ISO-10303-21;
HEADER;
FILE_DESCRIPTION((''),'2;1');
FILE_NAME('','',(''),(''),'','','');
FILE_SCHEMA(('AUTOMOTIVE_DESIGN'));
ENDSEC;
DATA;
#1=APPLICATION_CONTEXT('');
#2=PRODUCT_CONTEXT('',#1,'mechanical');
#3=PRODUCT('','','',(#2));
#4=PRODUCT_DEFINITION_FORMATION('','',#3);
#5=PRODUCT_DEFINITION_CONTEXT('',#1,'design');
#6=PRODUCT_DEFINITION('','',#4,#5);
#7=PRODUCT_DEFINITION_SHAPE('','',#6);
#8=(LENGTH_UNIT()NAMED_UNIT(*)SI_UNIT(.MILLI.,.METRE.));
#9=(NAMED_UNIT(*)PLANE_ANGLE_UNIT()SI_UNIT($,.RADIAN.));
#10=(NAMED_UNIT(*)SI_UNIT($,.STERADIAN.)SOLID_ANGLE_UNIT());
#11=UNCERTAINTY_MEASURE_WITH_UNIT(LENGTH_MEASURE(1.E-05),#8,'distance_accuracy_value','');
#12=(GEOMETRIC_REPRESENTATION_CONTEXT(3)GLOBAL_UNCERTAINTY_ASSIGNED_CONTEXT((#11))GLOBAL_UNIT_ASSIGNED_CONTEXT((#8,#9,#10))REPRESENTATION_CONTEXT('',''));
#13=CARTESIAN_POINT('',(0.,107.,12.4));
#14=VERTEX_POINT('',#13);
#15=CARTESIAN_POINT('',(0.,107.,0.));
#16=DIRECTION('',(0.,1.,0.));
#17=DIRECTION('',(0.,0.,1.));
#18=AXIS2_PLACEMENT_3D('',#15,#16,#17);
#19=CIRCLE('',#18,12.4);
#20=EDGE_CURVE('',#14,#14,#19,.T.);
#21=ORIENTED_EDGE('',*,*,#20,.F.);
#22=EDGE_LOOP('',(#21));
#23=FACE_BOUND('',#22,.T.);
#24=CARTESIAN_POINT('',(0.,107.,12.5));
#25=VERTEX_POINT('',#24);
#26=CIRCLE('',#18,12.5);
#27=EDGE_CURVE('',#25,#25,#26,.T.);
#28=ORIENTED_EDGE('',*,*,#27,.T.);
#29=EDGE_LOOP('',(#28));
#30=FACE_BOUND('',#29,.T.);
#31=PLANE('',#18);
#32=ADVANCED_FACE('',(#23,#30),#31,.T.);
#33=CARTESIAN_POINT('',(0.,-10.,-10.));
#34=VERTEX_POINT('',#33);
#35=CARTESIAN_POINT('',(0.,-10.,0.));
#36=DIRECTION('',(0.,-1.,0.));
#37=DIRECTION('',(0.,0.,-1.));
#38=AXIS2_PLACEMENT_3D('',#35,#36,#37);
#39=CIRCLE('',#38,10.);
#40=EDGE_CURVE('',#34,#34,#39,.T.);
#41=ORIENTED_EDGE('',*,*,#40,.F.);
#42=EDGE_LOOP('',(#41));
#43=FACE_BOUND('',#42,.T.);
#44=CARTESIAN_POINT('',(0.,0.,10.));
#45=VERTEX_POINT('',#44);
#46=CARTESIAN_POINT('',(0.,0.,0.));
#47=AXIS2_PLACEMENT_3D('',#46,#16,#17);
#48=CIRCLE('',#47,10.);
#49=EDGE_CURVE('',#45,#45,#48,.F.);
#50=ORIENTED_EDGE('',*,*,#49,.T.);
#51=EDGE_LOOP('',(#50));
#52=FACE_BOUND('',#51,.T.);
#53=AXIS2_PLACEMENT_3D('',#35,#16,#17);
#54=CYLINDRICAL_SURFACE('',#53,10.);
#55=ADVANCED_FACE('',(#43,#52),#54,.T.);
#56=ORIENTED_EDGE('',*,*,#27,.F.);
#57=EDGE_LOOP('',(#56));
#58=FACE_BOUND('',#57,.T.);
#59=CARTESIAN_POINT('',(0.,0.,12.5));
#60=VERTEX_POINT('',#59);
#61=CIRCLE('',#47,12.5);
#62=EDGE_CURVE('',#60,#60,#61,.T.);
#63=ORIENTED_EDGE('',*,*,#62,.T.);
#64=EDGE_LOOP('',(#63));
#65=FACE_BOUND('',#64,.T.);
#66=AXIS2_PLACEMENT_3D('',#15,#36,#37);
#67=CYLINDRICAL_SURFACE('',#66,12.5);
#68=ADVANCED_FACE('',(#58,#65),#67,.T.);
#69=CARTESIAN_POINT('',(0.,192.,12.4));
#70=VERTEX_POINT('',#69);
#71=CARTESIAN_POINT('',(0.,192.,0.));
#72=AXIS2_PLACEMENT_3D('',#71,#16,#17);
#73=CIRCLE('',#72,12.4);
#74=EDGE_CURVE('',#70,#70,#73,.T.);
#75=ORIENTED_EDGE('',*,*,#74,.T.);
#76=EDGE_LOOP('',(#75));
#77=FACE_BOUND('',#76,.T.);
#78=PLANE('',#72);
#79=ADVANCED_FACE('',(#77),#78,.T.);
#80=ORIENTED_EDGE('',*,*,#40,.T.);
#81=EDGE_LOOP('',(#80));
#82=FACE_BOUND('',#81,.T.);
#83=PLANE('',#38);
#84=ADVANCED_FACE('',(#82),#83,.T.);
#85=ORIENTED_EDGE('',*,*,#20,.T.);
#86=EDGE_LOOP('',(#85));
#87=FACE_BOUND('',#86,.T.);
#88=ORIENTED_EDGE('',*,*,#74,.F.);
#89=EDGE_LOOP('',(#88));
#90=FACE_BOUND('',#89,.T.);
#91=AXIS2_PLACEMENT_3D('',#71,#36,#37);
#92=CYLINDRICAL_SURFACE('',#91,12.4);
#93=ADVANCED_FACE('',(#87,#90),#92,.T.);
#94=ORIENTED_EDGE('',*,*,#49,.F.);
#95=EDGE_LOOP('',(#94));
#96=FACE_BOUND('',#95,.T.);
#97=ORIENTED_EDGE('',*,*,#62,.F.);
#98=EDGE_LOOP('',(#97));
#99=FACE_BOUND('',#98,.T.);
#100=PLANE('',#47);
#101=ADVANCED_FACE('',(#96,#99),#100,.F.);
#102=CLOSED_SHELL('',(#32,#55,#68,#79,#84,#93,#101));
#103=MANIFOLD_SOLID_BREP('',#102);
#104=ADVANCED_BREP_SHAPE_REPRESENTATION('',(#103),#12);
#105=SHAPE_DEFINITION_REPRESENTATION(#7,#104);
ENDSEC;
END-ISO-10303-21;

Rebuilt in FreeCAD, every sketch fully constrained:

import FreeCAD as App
import Part
import Sketcher

doc = App.newDocument("Part")
params = doc.addObject("Spreadsheet::Sheet", "Params")
for row, (alias, value) in enumerate([
    ("sketch1_diameter", "25 mm"),
    ("pad1_length", "107 mm"),
    ("sketch2_diameter", "24.8 mm"),
    ("pad2_length", "85 mm"),
    ("sketch3_diameter", "20 mm"),
    ("pad3_length", "10 mm"),
], start=1):
    params.set(f"A{row}", alias)
    params.set(f"B{row}", "=" + value)
    params.setAlias(f"B{row}", alias)

body = doc.addObject("PartDesign::Body", "Body")

# Sketch on XZ plane
sketch1 = doc.addObject("Sketcher::SketchObject", "Sketch")
body.addObject(sketch1)
sketch1.AttachmentSupport = (doc.XZ_Plane, [""])
sketch1.MapMode = "FlatFace"
sketch1.addGeometry(Part.Circle(App.Vector(0, 0, 0), App.Vector(0, 0, 1), 12), False)
sketch1.addConstraint([
    Sketcher.Constraint("Coincident", 0, 3, -1, 1),
    Sketcher.Constraint("Diameter", 0, 25.0),
])
sketch1.setExpression("Constraints[1]", "Params.sketch1_diameter")
pad1 = doc.addObject("PartDesign::Pad", "Pad")
body.addObject(pad1)
pad1.Profile = sketch1
pad1.setExpression("Length", "Params.pad1_length")
pad1.Reversed = True

# Sketch on XZ plane
sketch2 = doc.addObject("Sketcher::SketchObject", "Sketch001")
body.addObject(sketch2)
sketch2.AttachmentSupport = (doc.XZ_Plane, [""])
sketch2.MapMode = "FlatFace"
sketch2.AttachmentOffset = App.Placement(App.Vector(0, 0, -107), App.Rotation())
sketch2.addGeometry(Part.Circle(App.Vector(0, 0, 0), App.Vector(0, 0, 1), 12), False)
sketch2.addConstraint([
    Sketcher.Constraint("Coincident", 0, 3, -1, 1),
    Sketcher.Constraint("Diameter", 0, 24.8),
])
sketch2.setExpression("Constraints[1]", "Params.sketch2_diameter")
pad2 = doc.addObject("PartDesign::Pad", "Pad001")
body.addObject(pad2)
pad2.Profile = sketch2
pad2.setExpression("Length", "Params.pad2_length")
pad2.Reversed = True

# Sketch on XZ plane
sketch3 = doc.addObject("Sketcher::SketchObject", "Sketch002")
body.addObject(sketch3)
sketch3.AttachmentSupport = (doc.XZ_Plane, [""])
sketch3.MapMode = "FlatFace"
sketch3.addGeometry(Part.Circle(App.Vector(0, 0, 0), App.Vector(0, 0, 1), 10), False)
sketch3.addConstraint([
    Sketcher.Constraint("Coincident", 0, 3, -1, 1),
    Sketcher.Constraint("Diameter", 0, 20.0),
])
sketch3.setExpression("Constraints[1]", "Params.sketch3_diameter")
pad3 = doc.addObject("PartDesign::Pad", "Pad002")
body.addObject(pad3)
pad3.Profile = sketch3
pad3.setExpression("Length", "Params.pad3_length")

doc.recompute()
